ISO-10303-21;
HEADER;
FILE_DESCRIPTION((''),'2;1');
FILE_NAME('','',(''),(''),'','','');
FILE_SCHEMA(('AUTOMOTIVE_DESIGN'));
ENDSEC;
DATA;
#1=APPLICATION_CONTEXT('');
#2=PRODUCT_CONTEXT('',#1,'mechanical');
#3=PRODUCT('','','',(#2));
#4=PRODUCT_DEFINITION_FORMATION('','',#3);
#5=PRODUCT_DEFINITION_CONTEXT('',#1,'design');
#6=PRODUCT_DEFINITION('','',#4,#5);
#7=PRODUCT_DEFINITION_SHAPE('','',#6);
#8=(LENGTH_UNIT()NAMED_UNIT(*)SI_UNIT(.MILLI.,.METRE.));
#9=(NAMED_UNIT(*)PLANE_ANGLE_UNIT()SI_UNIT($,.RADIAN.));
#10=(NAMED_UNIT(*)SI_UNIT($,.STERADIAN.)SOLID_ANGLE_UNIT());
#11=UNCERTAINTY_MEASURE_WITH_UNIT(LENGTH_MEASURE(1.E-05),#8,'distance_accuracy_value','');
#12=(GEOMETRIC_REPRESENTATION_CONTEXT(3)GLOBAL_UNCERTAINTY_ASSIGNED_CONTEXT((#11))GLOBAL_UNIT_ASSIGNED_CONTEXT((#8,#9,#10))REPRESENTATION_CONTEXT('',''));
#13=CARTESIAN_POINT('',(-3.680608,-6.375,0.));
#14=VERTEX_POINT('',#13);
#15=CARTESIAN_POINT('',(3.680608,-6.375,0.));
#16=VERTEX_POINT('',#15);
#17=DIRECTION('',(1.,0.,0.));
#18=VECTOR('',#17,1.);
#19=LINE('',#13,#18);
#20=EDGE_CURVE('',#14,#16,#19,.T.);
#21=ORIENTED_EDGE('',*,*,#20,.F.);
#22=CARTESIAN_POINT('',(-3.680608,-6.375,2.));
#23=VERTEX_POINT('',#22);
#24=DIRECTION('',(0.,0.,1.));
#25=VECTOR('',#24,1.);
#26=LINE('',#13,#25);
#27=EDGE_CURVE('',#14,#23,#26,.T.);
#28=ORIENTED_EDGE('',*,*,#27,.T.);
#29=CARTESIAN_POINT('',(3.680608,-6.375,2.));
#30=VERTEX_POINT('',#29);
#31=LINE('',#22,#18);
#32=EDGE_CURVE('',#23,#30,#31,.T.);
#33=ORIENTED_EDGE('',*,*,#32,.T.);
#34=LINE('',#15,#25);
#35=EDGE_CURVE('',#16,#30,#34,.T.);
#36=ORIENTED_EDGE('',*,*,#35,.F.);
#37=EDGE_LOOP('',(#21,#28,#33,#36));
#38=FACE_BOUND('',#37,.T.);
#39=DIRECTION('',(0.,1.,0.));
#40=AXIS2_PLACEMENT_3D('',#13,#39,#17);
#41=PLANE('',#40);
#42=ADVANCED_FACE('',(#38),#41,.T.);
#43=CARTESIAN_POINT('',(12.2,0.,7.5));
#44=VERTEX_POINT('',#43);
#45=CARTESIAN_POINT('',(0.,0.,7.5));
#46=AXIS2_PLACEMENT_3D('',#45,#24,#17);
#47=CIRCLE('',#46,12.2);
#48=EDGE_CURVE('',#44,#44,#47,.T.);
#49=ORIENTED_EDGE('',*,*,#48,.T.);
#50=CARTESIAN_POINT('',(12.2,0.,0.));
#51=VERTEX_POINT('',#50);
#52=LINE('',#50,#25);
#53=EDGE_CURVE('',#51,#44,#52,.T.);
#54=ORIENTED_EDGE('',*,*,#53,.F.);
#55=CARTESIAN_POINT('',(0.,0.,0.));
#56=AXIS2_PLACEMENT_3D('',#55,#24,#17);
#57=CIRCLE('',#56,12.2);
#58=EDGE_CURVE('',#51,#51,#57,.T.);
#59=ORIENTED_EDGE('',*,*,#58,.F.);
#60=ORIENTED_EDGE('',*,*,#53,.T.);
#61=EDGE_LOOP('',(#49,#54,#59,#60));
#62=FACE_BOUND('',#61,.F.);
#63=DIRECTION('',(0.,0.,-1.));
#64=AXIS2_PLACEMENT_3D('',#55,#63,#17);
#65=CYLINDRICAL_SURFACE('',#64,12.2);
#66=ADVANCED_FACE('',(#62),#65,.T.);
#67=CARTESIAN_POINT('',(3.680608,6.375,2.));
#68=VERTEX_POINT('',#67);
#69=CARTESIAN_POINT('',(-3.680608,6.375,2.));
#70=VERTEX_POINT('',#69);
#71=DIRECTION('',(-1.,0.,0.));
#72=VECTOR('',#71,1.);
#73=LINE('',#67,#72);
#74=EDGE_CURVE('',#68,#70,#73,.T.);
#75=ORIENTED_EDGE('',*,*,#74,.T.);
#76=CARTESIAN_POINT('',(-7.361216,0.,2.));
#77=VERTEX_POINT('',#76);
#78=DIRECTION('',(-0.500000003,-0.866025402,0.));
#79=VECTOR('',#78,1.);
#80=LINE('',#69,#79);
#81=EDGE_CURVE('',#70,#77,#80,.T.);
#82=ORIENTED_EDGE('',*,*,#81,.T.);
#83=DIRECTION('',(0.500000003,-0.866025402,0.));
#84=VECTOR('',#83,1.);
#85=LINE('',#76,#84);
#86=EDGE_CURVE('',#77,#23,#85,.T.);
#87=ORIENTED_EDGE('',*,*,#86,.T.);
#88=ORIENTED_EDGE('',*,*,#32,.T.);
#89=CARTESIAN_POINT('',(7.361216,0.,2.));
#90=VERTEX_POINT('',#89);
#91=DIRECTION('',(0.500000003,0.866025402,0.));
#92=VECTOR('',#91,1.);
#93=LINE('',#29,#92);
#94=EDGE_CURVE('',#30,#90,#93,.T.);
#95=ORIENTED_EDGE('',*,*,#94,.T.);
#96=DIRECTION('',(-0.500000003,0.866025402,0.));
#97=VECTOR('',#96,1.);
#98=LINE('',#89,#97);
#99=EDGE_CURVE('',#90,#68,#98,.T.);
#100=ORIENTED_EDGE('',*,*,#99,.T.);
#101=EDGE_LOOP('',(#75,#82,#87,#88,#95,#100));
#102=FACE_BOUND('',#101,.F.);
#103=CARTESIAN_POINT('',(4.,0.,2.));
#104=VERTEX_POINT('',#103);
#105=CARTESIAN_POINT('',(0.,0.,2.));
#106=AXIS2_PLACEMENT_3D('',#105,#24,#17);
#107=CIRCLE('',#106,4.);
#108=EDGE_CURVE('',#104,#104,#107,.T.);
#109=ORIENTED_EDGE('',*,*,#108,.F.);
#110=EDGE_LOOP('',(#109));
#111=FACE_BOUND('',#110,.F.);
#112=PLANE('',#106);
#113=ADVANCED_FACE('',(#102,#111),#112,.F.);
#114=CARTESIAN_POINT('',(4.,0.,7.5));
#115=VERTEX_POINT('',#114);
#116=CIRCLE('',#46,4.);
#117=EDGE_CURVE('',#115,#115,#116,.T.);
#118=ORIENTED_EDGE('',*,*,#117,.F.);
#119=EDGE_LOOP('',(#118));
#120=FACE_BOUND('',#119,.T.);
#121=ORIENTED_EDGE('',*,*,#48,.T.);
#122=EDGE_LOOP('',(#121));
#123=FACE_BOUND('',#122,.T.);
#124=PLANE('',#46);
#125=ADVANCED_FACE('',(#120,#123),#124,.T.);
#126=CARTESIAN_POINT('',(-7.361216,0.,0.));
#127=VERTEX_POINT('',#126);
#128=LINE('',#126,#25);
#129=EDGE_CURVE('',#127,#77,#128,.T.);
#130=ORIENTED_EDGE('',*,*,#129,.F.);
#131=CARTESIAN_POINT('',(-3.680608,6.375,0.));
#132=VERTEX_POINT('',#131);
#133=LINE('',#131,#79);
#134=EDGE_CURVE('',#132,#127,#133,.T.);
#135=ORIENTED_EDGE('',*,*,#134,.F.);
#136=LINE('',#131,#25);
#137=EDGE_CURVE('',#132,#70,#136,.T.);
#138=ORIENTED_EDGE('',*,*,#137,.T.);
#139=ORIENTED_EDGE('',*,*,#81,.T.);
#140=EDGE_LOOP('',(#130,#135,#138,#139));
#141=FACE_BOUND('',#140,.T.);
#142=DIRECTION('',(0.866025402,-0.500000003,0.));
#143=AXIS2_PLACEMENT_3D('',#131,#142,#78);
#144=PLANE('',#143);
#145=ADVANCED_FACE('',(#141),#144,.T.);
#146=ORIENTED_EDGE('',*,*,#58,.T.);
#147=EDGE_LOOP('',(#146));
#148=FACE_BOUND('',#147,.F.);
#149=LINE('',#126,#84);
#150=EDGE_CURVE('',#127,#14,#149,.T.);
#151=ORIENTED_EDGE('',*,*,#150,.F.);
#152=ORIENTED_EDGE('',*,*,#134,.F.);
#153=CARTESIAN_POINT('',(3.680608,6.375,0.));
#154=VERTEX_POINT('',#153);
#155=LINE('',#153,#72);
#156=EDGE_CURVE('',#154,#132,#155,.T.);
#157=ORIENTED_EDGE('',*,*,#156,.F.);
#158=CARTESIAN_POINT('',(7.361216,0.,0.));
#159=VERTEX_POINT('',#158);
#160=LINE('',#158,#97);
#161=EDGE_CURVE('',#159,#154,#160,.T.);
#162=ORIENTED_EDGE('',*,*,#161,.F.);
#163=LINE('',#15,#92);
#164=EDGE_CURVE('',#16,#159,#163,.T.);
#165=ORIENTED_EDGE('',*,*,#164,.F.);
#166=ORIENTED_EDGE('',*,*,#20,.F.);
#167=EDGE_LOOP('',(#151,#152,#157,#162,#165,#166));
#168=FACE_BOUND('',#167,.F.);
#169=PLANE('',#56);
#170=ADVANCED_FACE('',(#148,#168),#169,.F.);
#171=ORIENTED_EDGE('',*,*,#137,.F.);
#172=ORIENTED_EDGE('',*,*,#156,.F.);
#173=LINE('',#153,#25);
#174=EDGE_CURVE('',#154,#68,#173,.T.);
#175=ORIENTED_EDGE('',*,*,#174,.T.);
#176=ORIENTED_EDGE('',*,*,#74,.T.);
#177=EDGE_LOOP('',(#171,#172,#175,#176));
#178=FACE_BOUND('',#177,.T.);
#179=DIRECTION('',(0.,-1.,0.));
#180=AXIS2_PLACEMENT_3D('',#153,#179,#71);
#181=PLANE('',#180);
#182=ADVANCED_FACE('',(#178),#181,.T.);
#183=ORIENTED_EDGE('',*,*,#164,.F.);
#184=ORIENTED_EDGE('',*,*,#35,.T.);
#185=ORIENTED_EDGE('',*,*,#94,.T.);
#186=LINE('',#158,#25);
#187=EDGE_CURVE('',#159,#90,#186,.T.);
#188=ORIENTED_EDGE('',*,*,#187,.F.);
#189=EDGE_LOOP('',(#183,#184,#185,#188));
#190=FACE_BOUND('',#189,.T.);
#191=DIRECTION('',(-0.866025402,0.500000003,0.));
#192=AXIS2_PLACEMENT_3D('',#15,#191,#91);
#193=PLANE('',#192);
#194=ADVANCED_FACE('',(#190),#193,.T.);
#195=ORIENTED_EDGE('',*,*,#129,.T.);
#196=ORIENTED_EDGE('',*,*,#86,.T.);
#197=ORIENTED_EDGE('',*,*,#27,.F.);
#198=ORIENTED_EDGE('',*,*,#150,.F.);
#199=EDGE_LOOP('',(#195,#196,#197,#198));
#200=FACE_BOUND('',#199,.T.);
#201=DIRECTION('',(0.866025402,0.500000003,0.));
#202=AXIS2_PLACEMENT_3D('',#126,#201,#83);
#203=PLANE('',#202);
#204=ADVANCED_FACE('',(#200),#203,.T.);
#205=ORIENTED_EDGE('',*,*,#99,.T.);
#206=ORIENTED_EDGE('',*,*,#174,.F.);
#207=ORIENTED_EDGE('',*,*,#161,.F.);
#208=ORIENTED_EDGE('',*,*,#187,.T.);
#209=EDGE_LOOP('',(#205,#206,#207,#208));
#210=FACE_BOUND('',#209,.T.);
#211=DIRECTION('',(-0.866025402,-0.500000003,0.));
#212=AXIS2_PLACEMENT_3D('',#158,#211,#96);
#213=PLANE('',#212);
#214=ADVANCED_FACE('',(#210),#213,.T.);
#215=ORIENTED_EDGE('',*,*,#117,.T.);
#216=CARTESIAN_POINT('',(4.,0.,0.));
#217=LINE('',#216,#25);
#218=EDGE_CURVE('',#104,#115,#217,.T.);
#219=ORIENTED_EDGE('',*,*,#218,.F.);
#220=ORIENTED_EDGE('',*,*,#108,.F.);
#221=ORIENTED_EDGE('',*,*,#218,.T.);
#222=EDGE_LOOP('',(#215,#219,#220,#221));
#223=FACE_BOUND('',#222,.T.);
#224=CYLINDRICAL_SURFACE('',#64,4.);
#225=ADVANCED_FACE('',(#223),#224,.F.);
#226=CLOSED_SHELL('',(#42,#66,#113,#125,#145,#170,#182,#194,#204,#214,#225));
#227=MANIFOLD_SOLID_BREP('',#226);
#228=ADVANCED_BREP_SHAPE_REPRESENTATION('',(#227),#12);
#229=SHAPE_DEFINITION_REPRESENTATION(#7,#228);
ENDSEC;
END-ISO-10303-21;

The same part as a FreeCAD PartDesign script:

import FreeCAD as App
import Part
import Sketcher
Q = App.Units.Quantity


def add_polygon(sketch, points):
    """Adds a closed chain of lines whose ends are joined by coincident constraints."""
    first, n = sketch.GeometryCount, len(points)
    for a, b in zip(points, points[1:] + points[:1]):
        sketch.addGeometry(Part.LineSegment(App.Vector(*a, 0), App.Vector(*b, 0)), False)
    for i in range(n):
        sketch.addConstraint(Sketcher.Constraint("Coincident", first + i, 2, first + (i + 1) % n, 1))

doc = App.newDocument("Part")
body = doc.addObject("PartDesign::Body", "Body")

sketch1 = doc.addObject("Sketcher::SketchObject", "Sketch")
body.addObject(sketch1)
sketch1.AttachmentSupport = (doc.XY_Plane, [""])
sketch1.MapMode = "FlatFace"
sketch1.addGeometry([
    Part.Circle(App.Vector(0, 0, 0), App.Vector(0, 0, 1), 12.2),
    Part.Circle(App.Vector(0, 0, 0), App.Vector(0, 0, 1), 4),
], False)
sketch1.addConstraint([
    Sketcher.Constraint("Coincident", 0, 3, -1, 1),
    Sketcher.Constraint("Coincident", 1, 3, -1, 1),
    Sketcher.Constraint("Diameter", 1, Q("8 mm")),
    Sketcher.Constraint("Diameter", 0, Q("24.4 mm")),
])
pad1 = doc.addObject("PartDesign::Pad", "Pad")
body.addObject(pad1)
pad1.Profile = sketch1
pad1.Length = 7.5

sketch2 = doc.addObject("Sketcher::SketchObject", "Sketch001")
body.addObject(sketch2)
sketch2.AttachmentSupport = (doc.XY_Plane, [""])
sketch2.MapMode = "FlatFace"
add_polygon(sketch2, [(-3.7, -6.4), (3.7, -6.4), (7.4, 0), (3.7, 6.4), (-3.7, 6.4), (-7.4, 0)])
sketch2.addGeometry(Part.Circle(App.Vector(0, 0, 0), App.Vector(0, 0, 1), 4), False)
sketch2.addConstraint([
    Sketcher.Constraint("Horizontal", 0),
    Sketcher.Constraint("Horizontal", 3),
    Sketcher.Constraint("Coincident", 6, 3, -1, 1),
    Sketcher.Constraint("Symmetric", 0, 2, 3, 2, -1, 1),
    Sketcher.Constraint("Symmetric", 1, 2, 4, 2, -1, 1),
    Sketcher.Constraint("PointOnObject", 1, 2, -1),
    Sketcher.Constraint("Parallel", 2, 5),
    Sketcher.Constraint("Vertical", 0, 2, 2, 2),
    Sketcher.Constraint("Diameter", 6, Q("8 mm")),
    Sketcher.Constraint("Angle", 1, Q("60 deg")),
    Sketcher.Constraint("DistanceY", 0, 2, 2, 2, Q("12.75 mm")),
    Sketcher.Constraint("DistanceX", 0, 1, 0, 2, Q("7.361216 mm")),
])
pocket1 = doc.addObject("PartDesign::Pocket", "Pocket")
body.addObject(pocket1)
pocket1.Profile = sketch2
pocket1.Length = 2
pocket1.Reversed = True

doc.recompute()
